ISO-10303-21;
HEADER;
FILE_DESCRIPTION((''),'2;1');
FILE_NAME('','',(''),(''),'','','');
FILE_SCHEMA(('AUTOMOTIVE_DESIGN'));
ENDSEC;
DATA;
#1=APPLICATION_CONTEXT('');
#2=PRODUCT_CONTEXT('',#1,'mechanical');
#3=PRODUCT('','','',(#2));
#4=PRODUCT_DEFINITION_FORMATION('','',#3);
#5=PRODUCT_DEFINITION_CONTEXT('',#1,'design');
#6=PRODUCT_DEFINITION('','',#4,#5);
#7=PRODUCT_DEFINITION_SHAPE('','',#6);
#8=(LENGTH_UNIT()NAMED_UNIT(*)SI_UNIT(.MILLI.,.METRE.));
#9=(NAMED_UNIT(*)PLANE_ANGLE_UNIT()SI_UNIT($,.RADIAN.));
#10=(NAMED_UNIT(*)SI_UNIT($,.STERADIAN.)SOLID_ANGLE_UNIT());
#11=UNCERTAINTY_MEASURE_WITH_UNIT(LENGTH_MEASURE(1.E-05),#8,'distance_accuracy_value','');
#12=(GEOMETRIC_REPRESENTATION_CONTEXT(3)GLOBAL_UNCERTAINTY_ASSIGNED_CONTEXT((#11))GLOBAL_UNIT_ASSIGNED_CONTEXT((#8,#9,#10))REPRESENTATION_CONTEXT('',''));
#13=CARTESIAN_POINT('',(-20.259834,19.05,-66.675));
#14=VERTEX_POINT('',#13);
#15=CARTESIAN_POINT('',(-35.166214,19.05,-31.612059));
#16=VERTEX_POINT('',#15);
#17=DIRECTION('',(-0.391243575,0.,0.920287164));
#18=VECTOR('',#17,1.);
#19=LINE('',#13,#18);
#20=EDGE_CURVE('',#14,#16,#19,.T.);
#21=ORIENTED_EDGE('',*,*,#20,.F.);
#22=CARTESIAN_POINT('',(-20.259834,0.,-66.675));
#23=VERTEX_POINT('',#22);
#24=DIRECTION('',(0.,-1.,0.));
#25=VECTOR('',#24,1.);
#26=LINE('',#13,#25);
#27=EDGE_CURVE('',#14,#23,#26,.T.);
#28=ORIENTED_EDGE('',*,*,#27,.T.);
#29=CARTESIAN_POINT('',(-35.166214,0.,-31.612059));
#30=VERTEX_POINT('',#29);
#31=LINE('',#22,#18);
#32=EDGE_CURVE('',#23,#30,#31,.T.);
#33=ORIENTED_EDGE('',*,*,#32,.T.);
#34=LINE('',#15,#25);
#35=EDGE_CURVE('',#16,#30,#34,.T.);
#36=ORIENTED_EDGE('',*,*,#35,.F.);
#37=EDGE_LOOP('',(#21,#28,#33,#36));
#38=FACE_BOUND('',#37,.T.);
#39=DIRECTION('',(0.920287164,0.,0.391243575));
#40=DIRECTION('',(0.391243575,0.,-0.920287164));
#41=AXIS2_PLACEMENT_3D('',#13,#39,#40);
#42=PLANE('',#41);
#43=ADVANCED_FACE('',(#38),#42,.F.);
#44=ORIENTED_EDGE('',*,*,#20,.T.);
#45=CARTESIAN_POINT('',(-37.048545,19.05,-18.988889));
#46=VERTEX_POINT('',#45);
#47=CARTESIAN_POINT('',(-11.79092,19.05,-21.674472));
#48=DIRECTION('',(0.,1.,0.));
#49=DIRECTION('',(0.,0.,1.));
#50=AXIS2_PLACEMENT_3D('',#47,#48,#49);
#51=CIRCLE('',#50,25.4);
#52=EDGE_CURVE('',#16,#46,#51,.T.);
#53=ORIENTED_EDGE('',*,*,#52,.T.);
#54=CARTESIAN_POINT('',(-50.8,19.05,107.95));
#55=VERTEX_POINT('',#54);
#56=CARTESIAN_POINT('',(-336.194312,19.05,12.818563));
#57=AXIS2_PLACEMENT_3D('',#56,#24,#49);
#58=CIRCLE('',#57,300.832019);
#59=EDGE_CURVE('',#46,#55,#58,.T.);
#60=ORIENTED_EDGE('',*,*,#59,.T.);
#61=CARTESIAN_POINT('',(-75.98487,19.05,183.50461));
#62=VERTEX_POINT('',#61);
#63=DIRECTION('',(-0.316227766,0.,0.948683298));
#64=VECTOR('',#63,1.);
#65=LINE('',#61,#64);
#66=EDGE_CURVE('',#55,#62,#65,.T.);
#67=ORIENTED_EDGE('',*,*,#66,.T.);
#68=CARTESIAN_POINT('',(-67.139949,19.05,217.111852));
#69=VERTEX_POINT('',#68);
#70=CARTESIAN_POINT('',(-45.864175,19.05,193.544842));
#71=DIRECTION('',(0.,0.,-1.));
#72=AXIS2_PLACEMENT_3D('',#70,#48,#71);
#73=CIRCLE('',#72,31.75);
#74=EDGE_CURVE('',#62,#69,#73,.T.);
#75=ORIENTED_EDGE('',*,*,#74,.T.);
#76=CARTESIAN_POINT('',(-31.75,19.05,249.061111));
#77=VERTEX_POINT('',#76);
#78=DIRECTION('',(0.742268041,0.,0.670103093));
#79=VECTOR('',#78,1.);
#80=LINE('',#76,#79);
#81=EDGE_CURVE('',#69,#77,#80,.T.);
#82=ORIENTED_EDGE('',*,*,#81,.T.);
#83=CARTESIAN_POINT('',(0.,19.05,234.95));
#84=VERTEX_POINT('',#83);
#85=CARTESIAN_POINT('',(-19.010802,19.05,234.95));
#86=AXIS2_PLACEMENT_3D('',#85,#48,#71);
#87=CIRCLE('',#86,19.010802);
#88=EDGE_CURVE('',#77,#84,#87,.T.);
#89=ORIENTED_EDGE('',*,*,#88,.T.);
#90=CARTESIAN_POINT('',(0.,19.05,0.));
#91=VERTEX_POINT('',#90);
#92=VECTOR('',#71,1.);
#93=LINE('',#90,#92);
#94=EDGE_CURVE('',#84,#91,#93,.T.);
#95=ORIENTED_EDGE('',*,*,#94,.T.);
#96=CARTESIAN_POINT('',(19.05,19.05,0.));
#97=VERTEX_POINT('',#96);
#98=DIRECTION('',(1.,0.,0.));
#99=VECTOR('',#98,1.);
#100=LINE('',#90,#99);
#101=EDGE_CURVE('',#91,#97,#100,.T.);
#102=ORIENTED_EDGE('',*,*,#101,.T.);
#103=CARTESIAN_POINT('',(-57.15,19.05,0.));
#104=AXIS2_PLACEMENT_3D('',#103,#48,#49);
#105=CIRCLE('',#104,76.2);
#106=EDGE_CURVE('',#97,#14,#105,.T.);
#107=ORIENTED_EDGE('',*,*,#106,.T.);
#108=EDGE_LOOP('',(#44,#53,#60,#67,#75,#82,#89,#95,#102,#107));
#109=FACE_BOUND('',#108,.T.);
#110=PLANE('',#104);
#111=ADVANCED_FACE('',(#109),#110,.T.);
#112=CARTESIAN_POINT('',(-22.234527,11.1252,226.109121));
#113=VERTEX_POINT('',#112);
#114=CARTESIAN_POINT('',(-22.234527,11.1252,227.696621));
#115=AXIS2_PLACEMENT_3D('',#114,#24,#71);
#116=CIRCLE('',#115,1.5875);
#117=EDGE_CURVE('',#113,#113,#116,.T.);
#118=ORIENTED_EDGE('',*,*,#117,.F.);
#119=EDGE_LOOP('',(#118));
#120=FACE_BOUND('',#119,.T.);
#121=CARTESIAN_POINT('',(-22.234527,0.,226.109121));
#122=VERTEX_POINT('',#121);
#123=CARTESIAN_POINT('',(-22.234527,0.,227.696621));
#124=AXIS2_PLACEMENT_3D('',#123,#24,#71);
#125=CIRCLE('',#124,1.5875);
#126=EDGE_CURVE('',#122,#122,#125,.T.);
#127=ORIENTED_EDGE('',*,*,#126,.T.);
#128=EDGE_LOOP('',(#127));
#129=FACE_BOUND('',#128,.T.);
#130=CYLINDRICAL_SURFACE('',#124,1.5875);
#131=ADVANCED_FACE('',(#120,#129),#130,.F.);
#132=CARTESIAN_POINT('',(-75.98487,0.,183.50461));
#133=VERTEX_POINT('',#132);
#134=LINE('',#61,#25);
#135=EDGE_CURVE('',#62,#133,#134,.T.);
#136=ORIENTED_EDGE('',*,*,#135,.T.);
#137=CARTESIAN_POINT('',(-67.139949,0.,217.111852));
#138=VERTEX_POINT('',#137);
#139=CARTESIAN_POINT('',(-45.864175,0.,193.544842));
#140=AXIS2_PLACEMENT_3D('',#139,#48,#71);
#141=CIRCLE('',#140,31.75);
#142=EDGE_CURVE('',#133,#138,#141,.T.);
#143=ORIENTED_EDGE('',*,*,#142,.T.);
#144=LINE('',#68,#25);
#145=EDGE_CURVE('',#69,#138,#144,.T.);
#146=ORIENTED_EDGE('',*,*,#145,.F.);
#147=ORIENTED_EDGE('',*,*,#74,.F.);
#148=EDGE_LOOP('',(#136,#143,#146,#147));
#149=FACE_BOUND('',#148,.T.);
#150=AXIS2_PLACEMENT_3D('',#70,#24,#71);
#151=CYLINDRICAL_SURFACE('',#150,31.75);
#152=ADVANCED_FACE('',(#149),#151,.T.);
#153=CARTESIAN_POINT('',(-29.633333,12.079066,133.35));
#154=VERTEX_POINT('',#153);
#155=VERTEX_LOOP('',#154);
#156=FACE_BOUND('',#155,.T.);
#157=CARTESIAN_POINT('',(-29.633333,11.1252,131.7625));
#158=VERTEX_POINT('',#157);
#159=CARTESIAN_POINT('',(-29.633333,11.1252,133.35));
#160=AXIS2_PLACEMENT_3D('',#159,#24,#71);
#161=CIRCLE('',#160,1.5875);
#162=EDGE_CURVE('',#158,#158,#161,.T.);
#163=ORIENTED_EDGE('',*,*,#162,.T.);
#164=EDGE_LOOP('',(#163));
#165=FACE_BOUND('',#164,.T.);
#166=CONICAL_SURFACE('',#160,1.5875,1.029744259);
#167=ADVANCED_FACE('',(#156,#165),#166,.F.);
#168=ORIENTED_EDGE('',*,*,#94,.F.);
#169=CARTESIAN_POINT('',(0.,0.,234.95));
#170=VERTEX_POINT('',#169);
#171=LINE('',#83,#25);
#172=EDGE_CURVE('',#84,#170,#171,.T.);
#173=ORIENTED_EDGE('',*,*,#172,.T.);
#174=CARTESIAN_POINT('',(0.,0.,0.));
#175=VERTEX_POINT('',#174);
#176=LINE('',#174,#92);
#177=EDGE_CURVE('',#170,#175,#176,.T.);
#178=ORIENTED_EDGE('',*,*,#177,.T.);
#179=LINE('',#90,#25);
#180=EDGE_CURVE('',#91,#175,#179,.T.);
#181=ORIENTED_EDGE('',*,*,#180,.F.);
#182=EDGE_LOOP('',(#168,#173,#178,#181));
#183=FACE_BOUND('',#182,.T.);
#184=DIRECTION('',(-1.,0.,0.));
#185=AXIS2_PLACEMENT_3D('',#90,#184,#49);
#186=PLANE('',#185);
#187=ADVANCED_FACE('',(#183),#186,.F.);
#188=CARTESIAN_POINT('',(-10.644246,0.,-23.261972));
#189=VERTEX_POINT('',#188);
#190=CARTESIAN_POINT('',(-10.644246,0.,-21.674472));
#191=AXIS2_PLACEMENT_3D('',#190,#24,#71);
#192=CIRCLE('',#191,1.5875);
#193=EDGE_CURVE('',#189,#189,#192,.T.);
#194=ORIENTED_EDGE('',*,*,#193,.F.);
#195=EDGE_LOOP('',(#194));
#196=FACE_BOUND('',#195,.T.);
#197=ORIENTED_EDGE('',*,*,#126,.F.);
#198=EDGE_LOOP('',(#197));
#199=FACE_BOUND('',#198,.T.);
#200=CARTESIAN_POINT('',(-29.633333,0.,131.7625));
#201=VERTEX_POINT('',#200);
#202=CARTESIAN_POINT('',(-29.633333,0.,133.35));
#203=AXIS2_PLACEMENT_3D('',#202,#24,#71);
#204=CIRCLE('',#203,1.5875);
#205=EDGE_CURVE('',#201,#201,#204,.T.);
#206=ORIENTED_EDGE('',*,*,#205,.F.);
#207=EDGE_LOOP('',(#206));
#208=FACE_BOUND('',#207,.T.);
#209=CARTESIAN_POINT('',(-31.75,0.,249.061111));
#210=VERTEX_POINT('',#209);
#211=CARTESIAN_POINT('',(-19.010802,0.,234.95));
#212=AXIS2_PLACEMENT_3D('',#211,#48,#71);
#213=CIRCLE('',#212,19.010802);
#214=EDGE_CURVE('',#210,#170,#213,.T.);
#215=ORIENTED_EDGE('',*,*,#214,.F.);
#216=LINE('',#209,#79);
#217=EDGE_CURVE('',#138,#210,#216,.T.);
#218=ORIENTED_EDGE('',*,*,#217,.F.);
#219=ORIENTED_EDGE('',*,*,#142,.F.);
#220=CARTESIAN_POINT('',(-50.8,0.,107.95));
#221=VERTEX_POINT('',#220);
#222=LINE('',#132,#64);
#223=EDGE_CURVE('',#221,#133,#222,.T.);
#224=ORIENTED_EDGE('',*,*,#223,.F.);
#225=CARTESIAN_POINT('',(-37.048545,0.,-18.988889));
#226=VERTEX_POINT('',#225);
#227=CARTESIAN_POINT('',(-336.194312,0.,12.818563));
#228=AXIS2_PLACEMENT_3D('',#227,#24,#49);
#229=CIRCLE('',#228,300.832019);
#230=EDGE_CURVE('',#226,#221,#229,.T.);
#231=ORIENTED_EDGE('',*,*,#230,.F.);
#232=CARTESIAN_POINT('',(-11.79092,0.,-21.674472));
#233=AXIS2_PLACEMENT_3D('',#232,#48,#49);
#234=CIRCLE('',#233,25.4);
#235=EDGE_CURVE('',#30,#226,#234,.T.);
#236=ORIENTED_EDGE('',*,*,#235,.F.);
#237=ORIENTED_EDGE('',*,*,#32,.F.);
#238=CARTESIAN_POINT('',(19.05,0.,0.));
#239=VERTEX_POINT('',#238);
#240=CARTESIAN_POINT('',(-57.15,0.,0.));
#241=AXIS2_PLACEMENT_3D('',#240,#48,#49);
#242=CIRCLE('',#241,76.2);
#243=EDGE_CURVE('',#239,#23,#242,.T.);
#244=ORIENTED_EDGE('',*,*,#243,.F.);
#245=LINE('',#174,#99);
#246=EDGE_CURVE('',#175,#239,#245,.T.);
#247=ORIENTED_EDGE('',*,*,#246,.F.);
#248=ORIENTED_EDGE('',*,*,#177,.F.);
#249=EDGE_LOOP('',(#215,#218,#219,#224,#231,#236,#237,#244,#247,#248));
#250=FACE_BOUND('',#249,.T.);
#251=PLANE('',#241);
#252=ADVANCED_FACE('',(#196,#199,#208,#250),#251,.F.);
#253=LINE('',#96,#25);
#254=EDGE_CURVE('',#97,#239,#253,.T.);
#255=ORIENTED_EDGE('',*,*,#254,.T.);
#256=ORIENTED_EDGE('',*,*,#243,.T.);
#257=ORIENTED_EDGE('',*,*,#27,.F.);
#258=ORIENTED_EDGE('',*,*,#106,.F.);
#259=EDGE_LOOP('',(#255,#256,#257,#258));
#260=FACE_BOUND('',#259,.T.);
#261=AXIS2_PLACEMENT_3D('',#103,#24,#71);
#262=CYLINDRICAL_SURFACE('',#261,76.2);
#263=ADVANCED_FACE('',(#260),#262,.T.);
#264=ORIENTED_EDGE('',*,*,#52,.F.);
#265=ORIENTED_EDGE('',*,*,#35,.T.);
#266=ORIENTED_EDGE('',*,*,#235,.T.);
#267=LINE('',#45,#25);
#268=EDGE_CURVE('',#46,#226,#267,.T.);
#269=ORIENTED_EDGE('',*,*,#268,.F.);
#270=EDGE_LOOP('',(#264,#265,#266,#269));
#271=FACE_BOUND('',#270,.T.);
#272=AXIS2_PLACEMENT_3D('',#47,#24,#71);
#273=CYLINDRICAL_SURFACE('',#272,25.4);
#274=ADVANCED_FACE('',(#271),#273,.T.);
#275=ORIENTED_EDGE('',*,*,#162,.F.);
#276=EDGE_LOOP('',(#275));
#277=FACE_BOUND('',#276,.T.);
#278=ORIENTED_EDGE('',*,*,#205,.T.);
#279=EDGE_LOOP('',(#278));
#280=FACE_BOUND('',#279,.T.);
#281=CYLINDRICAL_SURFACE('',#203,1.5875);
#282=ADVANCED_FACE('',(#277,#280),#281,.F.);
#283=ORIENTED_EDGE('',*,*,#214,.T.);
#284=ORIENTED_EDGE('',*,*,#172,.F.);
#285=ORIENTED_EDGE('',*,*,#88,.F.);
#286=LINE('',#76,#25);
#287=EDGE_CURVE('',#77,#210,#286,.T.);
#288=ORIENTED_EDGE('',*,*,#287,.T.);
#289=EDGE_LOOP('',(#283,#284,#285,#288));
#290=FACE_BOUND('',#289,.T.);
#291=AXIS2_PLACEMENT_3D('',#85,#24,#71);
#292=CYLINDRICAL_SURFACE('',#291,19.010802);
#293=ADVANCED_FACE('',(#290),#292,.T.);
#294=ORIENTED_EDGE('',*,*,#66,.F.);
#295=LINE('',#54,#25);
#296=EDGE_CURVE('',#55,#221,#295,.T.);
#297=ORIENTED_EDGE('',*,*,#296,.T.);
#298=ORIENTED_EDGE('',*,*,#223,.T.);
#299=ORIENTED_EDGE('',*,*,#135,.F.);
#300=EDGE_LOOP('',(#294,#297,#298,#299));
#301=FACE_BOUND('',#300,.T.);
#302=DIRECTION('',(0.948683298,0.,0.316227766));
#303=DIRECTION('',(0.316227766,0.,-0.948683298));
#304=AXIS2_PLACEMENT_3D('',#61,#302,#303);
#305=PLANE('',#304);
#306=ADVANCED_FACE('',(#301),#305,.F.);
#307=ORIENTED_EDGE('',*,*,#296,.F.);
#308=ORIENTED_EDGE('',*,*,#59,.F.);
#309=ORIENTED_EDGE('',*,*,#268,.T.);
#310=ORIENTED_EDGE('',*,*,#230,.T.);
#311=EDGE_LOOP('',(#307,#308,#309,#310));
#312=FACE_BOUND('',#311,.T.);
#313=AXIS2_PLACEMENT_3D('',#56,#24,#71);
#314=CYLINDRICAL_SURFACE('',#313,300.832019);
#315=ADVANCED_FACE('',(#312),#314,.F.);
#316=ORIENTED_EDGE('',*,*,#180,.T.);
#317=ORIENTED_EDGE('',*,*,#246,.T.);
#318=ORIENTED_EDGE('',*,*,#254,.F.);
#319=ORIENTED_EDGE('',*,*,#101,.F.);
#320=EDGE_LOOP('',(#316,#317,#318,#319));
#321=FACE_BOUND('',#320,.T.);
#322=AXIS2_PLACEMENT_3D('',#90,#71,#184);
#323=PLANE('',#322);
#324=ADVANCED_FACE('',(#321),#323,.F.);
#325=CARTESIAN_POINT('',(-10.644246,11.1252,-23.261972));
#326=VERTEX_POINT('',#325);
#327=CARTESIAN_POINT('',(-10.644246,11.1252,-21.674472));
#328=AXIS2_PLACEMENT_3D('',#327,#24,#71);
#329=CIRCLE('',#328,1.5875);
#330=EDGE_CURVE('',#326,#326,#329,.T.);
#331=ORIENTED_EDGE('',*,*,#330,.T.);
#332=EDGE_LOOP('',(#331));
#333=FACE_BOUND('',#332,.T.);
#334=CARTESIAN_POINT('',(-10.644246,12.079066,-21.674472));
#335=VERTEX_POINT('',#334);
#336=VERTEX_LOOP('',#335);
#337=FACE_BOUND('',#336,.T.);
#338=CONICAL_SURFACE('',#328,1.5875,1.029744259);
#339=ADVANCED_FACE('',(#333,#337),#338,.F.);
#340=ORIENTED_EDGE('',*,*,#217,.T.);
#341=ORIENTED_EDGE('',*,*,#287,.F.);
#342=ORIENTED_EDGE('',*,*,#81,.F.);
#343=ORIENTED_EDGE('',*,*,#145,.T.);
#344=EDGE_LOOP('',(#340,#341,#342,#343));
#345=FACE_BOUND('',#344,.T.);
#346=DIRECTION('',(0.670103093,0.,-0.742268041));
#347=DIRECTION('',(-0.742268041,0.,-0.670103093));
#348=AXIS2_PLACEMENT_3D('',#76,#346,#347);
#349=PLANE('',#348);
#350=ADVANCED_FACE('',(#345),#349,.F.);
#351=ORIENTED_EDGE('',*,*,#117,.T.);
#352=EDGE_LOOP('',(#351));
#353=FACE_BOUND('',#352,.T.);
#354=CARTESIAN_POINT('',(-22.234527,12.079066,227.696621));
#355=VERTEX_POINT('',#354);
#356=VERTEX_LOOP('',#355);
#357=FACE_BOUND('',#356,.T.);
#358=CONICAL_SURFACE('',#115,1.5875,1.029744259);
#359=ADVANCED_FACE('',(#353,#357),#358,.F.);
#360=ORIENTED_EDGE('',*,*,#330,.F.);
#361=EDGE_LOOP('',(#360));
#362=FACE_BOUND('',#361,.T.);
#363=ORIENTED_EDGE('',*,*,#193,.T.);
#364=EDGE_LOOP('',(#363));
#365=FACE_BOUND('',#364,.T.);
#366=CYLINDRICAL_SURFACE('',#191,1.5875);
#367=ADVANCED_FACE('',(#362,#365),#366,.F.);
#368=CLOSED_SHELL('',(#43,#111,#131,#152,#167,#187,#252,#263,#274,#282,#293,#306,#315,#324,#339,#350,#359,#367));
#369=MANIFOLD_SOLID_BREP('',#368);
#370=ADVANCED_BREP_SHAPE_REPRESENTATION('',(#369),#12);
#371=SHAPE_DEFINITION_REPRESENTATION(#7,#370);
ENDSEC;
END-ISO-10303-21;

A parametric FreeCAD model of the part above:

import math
import FreeCAD as App
import Part
import Sketcher
Q = App.Units.Quantity

doc = App.newDocument("Part")
params = doc.addObject("Spreadsheet::Sheet", "Params")
for row, (alias, value) in enumerate([
    ("sketch1_radius", "3 in"),
    ("sketch1_radius2", "1 in"),
    ("sketch1_radius3", "1.25 in"),
    ("sketch1_length", "1.5 in"),
    ("sketch1_width", "0.75 in"),
    ("pad1_length", "0.75 in"),
    ("sketch2_diameter", "0.125 in"),
    ("hole_diameter", "0.125 in"),
    ("hole_depth", "0.438 in"),
], start=1):
    params.set(f"A{row}", alias)
    params.set(f"B{row}", "=" + value)
    params.setAlias(f"B{row}", alias)

body = doc.addObject("PartDesign::Body", "Body")

# Sketch on XZ plane
sketch1 = doc.addObject("Sketcher::SketchObject", "Sketch")
body.addObject(sketch1)
sketch1.AttachmentSupport = (doc.XZ_Plane, [""])
sketch1.MapMode = "FlatFace"
sketch1.addGeometry([
    Part.LineSegment(App.Vector(0, 234.95, 0), App.Vector(0, 0, 0)),  # 0
    Part.LineSegment(App.Vector(0, 0, 0), App.Vector(19.05, 0, 0)),  # 1
    Part.ArcOfCircle(Part.Circle(App.Vector(-57.15, 0, 0), App.Vector(0, 0, 1), 76.2), math.radians(-61.044976), math.radians(0)),  # 2
    Part.LineSegment(App.Vector(-20.259834, -66.675, 0), App.Vector(-35.166214, -31.612059, 0)),  # 3
    Part.ArcOfCircle(Part.Circle(App.Vector(-11.79092, -21.674472, 0), App.Vector(0, 0, 1), 25.4), math.radians(173.930681), math.radians(203.0319)),  # 4
    Part.ArcOfCircle(Part.Circle(App.Vector(-336.194312, 12.818563, 0), App.Vector(0, 0, 1), 300.832019), math.radians(-6.069319), math.radians(18.434949)),  # 5
    Part.LineSegment(App.Vector(-50.8, 107.95, 0), App.Vector(-75.98487, 183.50461, 0)),  # 6
    Part.ArcOfCircle(Part.Circle(App.Vector(-45.864175, 193.544842, 0), App.Vector(0, 0, 1), 31.75), math.radians(132.075022), math.radians(198.434949)),  # 7
    Part.LineSegment(App.Vector(-67.139949, 217.111852, 0), App.Vector(-31.75, 249.061111, 0)),  # 8
    Part.ArcOfCircle(Part.Circle(App.Vector(-19.010802, 234.95, 0), App.Vector(0, 0, 1), 19.010802), math.radians(0), math.radians(132.075022)),  # 9
], False)
sketch1.addConstraint([
    Sketcher.Constraint("Coincident", 0, 2, 1, 1),
    Sketcher.Constraint("Coincident", 1, 2, 2, 2),
    Sketcher.Constraint("Coincident", 2, 1, 3, 1),
    Sketcher.Constraint("Tangent", 3, 2, 4, 2),
    Sketcher.Constraint("Tangent", 4, 1, 5, 1),
    Sketcher.Constraint("Tangent", 5, 2, 6, 1),
    Sketcher.Constraint("Tangent", 6, 2, 7, 2),
    Sketcher.Constraint("Tangent", 7, 1, 8, 1),
    Sketcher.Constraint("Tangent", 8, 2, 9, 2),
    Sketcher.Constraint("Tangent", 9, 1, 0, 1),
    Sketcher.Constraint("Vertical", 0),
    Sketcher.Constraint("Horizontal", 1),
    Sketcher.Constraint("Coincident", 0, 2, -1, 1),
    Sketcher.Constraint("PointOnObject", 2, 3, -1),
    Sketcher.Constraint("Radius", 2, Q("3 in")),
    Sketcher.Constraint("Radius", 4, Q("1 in")),
    Sketcher.Constraint("Radius", 7, Q("1.25 in")),
    Sketcher.Constraint("DistanceX", 5, 2, -1, 1, Q("2 in")),
    Sketcher.Constraint("Distance", 3, Q("1.5 in")),
    Sketcher.Constraint("DistanceX", 1, 1, 1, 2, Q("0.75 in")),
    Sketcher.Constraint("DistanceY", 0, 2, 0, 1, Q("9.25 in")),
    Sketcher.Constraint("DistanceY", -1, 1, 5, 2, Q("4.25 in")),
    Sketcher.Constraint("DistanceX", 8, 2, -1, 1, Q("1.25 in")),
    Sketcher.Constraint("DistanceY", 2, 1, -1, 1, Q("2.625 in")),
    Sketcher.Constraint("Radius", 5, 300.832019),
    Sketcher.Constraint("Radius", 9, 19.010802),
    Sketcher.Constraint("DistanceY", 6, 2, 8, 2, 65.556501),
])
sketch1.setExpression("Constraints[14]", "Params.sketch1_radius")
sketch1.setExpression("Constraints[15]", "Params.sketch1_radius2")
sketch1.setExpression("Constraints[16]", "Params.sketch1_radius3")
sketch1.setExpression("Constraints[18]", "Params.sketch1_length")
sketch1.setExpression("Constraints[19]", "Params.sketch1_width")
pad1 = doc.addObject("PartDesign::Pad", "Pad")
body.addObject(pad1)
pad1.Profile = sketch1
pad1.setExpression("Length", "Params.pad1_length")
pad1.Reversed = True

# Sketch on XZ plane
sketch2 = doc.addObject("Sketcher::SketchObject", "Sketch001")
body.addObject(sketch2)
sketch2.AttachmentSupport = (doc.XZ_Plane, [""])
sketch2.MapMode = "FlatFace"
sketch2.addGeometry([
    Part.Circle(App.Vector(-10.644246, -21.674472, 0), App.Vector(0, 0, 1), 1.5875),
    Part.Circle(App.Vector(-29.633333, 133.35, 0), App.Vector(0, 0, 1), 1.5875),
    Part.Circle(App.Vector(-22.234527, 227.696621, 0), App.Vector(0, 0, 1), 1.5875),
], False)
sketch2.addConstraint([
    Sketcher.Constraint("Equal", 0, 1),
    Sketcher.Constraint("Equal", 1, 2),
    Sketcher.Constraint("Diameter", 0, Q("0.125 in")),
    Sketcher.Constraint("DistanceY", -1, 1, 1, 3, Q("5.25 in")),
    Sketcher.Constraint("DistanceY", -1, 1, 2, 3, 227.696621),
    Sketcher.Constraint("DistanceX", 2, 3, 0, 3, 11.590281),
    Sketcher.Constraint("DistanceX", 0, 3, -1, 1, 10.644246),
    Sketcher.Constraint("DistanceY", 0, 3, -1, 1, 21.674472),
    Sketcher.Constraint("DistanceX", 1, 3, -1, 1, 29.633333),
])
sketch2.setExpression("Constraints[2]", "Params.sketch2_diameter")
doc.recompute()
hole = doc.addObject("PartDesign::Hole", "Hole")
body.addObject(hole)
hole.Profile = sketch2
hole.ThreadType = "None"
hole.setExpression("Diameter", "Params.hole_diameter")
hole.DepthType = "Dimension"
hole.setExpression("Depth", "Params.hole_depth")
hole.DrillPoint = "Angled"
hole.DrillPointAngle = 118

doc.recompute()
